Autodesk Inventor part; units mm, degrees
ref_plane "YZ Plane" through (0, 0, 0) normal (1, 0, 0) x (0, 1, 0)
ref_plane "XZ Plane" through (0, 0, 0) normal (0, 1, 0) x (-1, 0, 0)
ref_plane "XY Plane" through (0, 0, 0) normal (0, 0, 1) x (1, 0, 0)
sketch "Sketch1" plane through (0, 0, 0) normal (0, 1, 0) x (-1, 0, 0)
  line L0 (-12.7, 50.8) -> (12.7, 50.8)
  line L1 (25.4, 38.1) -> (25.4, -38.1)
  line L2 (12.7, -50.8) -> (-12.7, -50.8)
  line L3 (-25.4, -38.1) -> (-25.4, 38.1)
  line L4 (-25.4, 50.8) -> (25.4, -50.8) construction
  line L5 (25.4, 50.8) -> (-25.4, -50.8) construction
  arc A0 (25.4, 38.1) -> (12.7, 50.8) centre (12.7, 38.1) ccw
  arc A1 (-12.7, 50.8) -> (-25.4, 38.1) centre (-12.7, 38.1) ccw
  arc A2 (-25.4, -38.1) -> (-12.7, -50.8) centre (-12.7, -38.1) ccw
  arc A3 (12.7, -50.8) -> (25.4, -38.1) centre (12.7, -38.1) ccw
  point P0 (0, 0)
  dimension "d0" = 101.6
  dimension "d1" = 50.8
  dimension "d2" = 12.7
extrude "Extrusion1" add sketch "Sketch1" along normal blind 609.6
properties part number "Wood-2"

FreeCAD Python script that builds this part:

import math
import FreeCAD as App
import Part
import Sketcher

V = App.Vector
Q = App.Units.Quantity

doc = App.newDocument("Part")
body = doc.addObject("PartDesign::Body", "Body")

# Sketch on XZ plane
sketch1 = body.newObject("Sketcher::SketchObject", "Sketch")
sketch1.AttachmentSupport = (doc.getObject("XZ_Plane"), [""])
sketch1.MapMode = "FlatFace"
sketch1.addGeometry(Part.LineSegment(V(-12.7, 50.8, 0), V(12.7, 50.8, 0)), False)
sketch1.addGeometry(Part.ArcOfCircle(Part.Circle(V(12.7, 38.1, 0), V(0, 0, 1), 12.7), math.radians(0), math.radians(90)), False)
sketch1.addGeometry(Part.LineSegment(V(25.4, 38.1, 0), V(25.4, -38.1, 0)), False)
sketch1.addGeometry(Part.ArcOfCircle(Part.Circle(V(12.7, -38.1, 0), V(0, 0, 1), 12.7), math.radians(-90), math.radians(0)), False)
sketch1.addGeometry(Part.LineSegment(V(12.7, -50.8, 0), V(-12.7, -50.8, 0)), False)
sketch1.addGeometry(Part.ArcOfCircle(Part.Circle(V(-12.7, -38.1, 0), V(0, 0, 1), 12.7), math.radians(180), math.radians(270)), False)
sketch1.addGeometry(Part.LineSegment(V(-25.4, -38.1, 0), V(-25.4, 38.1, 0)), False)
sketch1.addGeometry(Part.ArcOfCircle(Part.Circle(V(-12.7, 38.1, 0), V(0, 0, 1), 12.7), math.radians(90), math.radians(180)), False)
sketch1.addConstraint(Sketcher.Constraint("Tangent", 0, 2, 1, 2))
sketch1.addConstraint(Sketcher.Constraint("Tangent", 1, 1, 2, 1))
sketch1.addConstraint(Sketcher.Constraint("Tangent", 2, 2, 3, 2))
sketch1.addConstraint(Sketcher.Constraint("Tangent", 3, 1, 4, 1))
sketch1.addConstraint(Sketcher.Constraint("Tangent", 4, 2, 5, 2))
sketch1.addConstraint(Sketcher.Constraint("Tangent", 5, 1, 6, 1))
sketch1.addConstraint(Sketcher.Constraint("Tangent", 6, 2, 7, 2))
sketch1.addConstraint(Sketcher.Constraint("Tangent", 7, 1, 0, 1))
sketch1.addConstraint(Sketcher.Constraint("Horizontal", 0))
sketch1.addConstraint(Sketcher.Constraint("Vertical", 2))
sketch1.addConstraint(Sketcher.Constraint("Horizontal", 4))
sketch1.addConstraint(Sketcher.Constraint("Vertical", 6))
sketch1.addConstraint(Sketcher.Constraint("Equal", 1, 3))
sketch1.addConstraint(Sketcher.Constraint("Equal", 3, 5))
sketch1.addConstraint(Sketcher.Constraint("Equal", 5, 7))
sketch1.addConstraint(Sketcher.Constraint("Symmetric", 1, 3, 5, 3, -1, 1))
sketch1.addConstraint(Sketcher.Constraint("Radius", 1, Q("0.5 in")))
sketch1.addConstraint(Sketcher.Constraint("DistanceY", -1, 1, 0, 2, Q("2 in")))
sketch1.addConstraint(Sketcher.Constraint("DistanceX", 5, 1, 2, 2, Q("2 in")))
pad1 = body.newObject("PartDesign::Pad", "Pad")
pad1.Profile = sketch1
pad1.Length = Q("24 in")
pad1.Reversed = True

doc.recompute()
